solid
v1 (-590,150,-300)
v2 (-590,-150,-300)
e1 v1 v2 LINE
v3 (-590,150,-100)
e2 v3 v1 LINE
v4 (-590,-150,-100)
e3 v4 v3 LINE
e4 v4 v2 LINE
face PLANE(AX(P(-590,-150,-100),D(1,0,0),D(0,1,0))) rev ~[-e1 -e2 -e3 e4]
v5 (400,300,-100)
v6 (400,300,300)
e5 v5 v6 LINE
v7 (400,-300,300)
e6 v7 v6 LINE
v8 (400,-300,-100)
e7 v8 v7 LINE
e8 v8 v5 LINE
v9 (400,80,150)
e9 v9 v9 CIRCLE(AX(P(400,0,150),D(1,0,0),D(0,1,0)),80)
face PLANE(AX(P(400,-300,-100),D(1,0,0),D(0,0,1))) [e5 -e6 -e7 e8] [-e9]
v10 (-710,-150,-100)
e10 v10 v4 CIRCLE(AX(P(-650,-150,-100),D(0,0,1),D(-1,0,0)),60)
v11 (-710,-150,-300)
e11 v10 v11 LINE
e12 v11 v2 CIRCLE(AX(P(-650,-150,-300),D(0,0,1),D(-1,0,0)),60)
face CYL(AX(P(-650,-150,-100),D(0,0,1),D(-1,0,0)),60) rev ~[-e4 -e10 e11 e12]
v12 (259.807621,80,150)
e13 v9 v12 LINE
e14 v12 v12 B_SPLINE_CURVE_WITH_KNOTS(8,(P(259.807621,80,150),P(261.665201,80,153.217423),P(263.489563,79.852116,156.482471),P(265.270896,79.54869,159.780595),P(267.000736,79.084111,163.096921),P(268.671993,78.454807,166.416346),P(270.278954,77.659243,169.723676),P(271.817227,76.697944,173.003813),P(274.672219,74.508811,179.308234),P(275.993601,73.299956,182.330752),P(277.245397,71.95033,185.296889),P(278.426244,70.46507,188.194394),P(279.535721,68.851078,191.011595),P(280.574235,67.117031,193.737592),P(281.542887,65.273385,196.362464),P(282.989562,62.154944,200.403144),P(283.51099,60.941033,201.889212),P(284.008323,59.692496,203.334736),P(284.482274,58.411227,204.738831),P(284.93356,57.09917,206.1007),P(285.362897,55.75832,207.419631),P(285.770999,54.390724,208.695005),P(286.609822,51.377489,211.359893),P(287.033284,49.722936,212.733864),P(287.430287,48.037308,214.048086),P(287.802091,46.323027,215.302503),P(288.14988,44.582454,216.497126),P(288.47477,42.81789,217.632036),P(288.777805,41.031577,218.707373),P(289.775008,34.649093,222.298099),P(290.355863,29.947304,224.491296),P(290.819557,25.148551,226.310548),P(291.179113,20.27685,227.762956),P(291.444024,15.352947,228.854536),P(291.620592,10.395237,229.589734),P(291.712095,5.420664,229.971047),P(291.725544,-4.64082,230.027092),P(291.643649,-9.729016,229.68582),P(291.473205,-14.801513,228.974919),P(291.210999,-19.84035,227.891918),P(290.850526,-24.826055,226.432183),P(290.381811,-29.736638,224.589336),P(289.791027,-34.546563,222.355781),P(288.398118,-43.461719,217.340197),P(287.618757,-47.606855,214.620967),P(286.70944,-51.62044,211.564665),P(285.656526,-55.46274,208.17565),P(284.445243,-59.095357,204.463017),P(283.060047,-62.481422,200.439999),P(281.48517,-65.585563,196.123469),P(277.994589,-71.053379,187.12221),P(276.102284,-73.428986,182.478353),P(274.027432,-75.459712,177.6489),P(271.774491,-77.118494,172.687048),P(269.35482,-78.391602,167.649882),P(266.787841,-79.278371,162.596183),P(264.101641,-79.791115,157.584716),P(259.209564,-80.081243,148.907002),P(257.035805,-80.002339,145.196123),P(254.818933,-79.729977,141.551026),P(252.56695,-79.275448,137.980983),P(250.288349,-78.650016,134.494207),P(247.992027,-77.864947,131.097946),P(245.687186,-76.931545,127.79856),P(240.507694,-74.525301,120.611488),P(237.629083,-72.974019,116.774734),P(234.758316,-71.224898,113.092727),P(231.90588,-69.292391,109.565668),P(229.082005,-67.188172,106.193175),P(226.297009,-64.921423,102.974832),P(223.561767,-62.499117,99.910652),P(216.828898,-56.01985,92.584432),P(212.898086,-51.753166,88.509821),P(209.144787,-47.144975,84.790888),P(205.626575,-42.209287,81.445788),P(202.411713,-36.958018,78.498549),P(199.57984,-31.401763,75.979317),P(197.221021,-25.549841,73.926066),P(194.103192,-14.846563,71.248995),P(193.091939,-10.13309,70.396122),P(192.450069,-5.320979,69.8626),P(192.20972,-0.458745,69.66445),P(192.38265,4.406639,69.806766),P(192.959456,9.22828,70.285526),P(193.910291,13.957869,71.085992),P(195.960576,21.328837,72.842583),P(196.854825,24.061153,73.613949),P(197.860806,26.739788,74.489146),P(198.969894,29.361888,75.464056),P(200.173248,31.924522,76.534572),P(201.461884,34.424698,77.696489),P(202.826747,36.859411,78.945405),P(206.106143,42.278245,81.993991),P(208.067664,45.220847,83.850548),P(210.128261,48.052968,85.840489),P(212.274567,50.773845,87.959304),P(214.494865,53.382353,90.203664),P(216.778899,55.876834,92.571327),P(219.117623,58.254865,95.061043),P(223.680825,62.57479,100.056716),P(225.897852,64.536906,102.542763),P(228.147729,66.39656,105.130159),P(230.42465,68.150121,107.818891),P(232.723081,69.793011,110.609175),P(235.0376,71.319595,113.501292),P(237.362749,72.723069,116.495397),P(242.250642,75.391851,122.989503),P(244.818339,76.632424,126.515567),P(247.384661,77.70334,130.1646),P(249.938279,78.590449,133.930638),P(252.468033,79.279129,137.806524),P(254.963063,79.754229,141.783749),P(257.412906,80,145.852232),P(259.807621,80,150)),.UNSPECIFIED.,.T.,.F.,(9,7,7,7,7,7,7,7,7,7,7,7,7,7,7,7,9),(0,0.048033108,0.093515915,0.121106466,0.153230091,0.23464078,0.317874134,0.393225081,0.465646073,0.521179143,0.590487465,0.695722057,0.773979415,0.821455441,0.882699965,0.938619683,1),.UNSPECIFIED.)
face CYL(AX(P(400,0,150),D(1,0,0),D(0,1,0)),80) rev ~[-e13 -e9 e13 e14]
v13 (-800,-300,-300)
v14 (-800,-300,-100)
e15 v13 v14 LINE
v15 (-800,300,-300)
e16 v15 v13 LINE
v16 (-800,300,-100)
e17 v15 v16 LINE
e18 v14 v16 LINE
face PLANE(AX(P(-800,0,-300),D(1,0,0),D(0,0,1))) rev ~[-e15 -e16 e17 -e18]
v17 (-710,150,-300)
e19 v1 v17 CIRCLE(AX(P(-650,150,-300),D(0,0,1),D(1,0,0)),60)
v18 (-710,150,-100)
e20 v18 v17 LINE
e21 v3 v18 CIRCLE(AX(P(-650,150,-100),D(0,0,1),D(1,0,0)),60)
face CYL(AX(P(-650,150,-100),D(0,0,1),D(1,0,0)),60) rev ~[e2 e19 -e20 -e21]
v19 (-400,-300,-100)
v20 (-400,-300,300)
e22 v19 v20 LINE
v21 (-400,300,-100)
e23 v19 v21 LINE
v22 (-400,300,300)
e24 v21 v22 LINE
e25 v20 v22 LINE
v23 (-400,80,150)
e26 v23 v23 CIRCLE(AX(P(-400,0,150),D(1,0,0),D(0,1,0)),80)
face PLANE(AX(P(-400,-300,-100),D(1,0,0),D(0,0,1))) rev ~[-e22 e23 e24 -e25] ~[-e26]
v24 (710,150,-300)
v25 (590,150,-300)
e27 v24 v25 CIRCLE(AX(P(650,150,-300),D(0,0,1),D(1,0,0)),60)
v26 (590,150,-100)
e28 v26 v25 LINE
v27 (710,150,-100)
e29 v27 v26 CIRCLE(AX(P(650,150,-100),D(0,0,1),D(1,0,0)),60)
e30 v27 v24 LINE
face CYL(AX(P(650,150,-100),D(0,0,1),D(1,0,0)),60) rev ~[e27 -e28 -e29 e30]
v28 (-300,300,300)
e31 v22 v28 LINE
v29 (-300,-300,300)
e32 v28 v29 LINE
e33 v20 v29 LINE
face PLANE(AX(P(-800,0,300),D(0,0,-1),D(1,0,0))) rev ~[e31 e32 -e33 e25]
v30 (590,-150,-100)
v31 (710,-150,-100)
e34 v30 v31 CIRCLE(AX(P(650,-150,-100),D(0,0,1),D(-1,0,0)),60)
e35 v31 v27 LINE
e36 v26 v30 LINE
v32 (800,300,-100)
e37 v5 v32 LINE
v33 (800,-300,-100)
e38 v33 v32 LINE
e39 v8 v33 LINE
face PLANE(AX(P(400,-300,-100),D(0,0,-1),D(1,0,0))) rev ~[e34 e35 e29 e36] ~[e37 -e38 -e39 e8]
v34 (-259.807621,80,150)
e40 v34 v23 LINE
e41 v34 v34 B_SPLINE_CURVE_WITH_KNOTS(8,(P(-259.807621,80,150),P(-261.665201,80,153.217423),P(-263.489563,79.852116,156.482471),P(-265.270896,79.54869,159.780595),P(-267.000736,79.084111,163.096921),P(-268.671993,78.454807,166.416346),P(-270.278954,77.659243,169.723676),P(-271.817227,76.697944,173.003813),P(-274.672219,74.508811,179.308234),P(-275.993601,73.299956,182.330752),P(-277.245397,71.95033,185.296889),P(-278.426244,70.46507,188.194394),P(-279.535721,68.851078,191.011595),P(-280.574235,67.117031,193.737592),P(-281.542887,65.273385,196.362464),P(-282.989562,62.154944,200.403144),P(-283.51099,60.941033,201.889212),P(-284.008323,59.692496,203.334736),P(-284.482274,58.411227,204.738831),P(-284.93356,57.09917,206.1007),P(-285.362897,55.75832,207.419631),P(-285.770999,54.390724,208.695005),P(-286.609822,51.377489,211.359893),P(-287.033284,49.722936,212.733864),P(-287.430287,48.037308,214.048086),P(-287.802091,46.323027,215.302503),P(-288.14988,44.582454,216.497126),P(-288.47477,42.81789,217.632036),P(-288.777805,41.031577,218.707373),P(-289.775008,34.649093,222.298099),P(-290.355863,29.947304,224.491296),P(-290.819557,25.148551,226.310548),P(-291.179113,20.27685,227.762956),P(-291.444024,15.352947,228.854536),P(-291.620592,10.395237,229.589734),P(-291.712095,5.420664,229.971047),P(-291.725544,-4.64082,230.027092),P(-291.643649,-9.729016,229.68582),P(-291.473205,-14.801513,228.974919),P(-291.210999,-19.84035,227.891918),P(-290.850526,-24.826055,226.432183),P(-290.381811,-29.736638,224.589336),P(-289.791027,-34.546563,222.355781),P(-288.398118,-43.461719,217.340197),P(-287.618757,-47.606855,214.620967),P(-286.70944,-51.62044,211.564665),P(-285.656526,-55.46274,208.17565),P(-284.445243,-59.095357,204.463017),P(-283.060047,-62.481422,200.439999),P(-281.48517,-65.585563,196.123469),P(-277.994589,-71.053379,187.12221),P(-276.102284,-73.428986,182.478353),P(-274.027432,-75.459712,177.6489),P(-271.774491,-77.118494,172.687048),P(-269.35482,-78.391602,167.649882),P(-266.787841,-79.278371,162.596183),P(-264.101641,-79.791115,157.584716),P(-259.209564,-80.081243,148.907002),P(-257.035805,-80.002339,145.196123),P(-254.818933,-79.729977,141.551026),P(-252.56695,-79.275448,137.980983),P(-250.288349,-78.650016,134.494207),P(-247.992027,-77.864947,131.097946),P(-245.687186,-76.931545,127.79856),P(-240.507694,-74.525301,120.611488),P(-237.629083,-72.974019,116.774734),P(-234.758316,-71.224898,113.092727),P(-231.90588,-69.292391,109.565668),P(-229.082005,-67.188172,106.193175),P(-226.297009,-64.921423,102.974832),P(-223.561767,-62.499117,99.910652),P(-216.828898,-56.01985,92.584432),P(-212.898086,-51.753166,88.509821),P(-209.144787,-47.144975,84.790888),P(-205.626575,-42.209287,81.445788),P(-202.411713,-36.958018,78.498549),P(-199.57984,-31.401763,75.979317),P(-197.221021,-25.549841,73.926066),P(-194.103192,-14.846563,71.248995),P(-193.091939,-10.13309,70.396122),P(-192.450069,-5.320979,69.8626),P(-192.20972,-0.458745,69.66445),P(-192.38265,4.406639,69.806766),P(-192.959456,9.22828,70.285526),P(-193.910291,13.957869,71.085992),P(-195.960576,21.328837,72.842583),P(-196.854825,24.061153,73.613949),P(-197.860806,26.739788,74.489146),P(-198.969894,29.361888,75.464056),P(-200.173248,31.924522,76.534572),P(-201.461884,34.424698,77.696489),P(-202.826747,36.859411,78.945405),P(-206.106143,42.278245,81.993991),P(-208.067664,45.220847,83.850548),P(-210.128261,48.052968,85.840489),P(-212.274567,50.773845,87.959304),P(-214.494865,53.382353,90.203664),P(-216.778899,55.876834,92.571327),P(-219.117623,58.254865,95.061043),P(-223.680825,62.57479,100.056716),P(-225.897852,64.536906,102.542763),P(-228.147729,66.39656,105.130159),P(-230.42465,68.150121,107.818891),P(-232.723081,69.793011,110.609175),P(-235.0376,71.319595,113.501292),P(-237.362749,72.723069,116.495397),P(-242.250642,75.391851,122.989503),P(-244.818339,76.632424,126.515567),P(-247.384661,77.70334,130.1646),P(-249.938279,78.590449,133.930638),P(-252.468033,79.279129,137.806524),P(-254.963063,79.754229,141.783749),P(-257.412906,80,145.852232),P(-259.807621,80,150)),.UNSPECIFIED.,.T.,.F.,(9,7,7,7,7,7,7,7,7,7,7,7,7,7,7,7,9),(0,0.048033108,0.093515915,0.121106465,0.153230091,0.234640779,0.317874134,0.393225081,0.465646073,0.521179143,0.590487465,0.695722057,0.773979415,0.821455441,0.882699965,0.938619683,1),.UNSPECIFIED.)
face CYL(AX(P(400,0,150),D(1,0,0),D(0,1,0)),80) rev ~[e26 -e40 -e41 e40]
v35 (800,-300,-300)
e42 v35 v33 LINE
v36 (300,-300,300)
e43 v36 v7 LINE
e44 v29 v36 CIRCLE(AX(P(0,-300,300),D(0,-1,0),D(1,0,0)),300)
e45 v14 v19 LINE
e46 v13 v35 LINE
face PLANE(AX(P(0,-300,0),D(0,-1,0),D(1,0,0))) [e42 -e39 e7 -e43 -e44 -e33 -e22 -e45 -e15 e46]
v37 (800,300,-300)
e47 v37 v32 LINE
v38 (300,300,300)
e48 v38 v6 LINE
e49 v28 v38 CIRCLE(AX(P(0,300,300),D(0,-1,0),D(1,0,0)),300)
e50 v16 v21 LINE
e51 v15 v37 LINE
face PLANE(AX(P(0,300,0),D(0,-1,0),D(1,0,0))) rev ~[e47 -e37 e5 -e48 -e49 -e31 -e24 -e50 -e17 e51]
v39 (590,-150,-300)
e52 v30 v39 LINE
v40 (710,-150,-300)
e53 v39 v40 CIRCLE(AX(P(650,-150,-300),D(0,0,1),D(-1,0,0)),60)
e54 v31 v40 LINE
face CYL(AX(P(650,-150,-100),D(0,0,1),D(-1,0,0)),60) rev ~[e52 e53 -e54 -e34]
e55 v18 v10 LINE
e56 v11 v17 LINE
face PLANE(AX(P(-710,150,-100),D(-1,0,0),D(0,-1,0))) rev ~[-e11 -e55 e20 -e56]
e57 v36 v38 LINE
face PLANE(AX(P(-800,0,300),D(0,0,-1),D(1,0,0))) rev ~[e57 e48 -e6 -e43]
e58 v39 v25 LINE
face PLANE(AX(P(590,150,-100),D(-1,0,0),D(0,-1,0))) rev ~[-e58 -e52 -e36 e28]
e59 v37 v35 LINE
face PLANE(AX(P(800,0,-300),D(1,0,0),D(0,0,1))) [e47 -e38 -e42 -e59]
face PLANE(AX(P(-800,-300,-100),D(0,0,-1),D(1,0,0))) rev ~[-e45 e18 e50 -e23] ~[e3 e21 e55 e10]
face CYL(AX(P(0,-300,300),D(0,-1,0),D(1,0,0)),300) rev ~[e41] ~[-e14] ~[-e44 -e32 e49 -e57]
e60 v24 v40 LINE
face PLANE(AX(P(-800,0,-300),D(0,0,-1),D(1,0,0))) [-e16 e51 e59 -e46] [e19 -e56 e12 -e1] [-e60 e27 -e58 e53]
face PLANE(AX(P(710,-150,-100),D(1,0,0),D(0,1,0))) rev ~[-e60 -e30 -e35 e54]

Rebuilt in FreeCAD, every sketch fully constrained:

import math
import FreeCAD as App
import Part
import Sketcher
from FreeCAD import Vector

doc = App.newDocument("Part")
body = doc.addObject("PartDesign::Body", "Body")

# Sketch on XZ plane
sketch1 = body.newObject("Sketcher::SketchObject", "Sketch")
sketch1.AttachmentSupport = (doc.getObject("XZ_Plane"), [""])
sketch1.MapMode = "FlatFace"
sketch1.addGeometry(Part.LineSegment(Vector(-800, 300, 0), Vector(-800, -300, 0)), False)
sketch1.addGeometry(Part.LineSegment(Vector(-800, -300, 0), Vector(800, -300, 0)), False)
sketch1.addGeometry(Part.LineSegment(Vector(800, -300, 0), Vector(800, 300, 0)), False)
sketch1.addGeometry(Part.LineSegment(Vector(800, 300, 0), Vector(-800, 300, 0)), False)
sketch1.addConstraint(Sketcher.Constraint("Coincident", 0, 2, 1, 1))
sketch1.addConstraint(Sketcher.Constraint("Coincident", 1, 2, 2, 1))
sketch1.addConstraint(Sketcher.Constraint("Coincident", 2, 2, 3, 1))
sketch1.addConstraint(Sketcher.Constraint("Coincident", 3, 2, 0, 1))
sketch1.addConstraint(Sketcher.Constraint("Vertical", 0))
sketch1.addConstraint(Sketcher.Constraint("Horizontal", 1))
sketch1.addConstraint(Sketcher.Constraint("Vertical", 2))
sketch1.addConstraint(Sketcher.Constraint("Horizontal", 3))
sketch1.addConstraint(Sketcher.Constraint("Symmetric", 0, 2, 2, 2, -1, 1))
sketch1.addConstraint(Sketcher.Constraint("DistanceX", 1, 1, 1, 2, 1600.0))
sketch1.addConstraint(Sketcher.Constraint("DistanceY", 0, 2, 0, 1, 600.0))
pad1 = body.newObject("PartDesign::Pad", "Pad")
pad1.Profile = sketch1
pad1.Length = 600
pad1.Midplane = True

# Sketch on XZ plane
sketch2 = body.newObject("Sketcher::SketchObject", "Sketch001")
sketch2.AttachmentSupport = (doc.getObject("XZ_Plane"), [""])
sketch2.MapMode = "FlatFace"
sketch2.AttachmentOffset = App.Placement(Vector(0, 0, 300), App.Rotation())
sketch2.addGeometry(Part.Circle(Vector(0, 300, 0), Vector(0, 0, 1), 300), False)
sketch2.addConstraint(Sketcher.Constraint("PointOnObject", 0, 3, -2))
sketch2.addConstraint(Sketcher.Constraint("Diameter", 0, 600.0))
sketch2.addConstraint(Sketcher.Constraint("DistanceY", -1, 1, 0, 3, 300.0))
pocket1 = body.newObject("PartDesign::Pocket", "Pocket")
pocket1.Profile = sketch2
pocket1.Length = 600

# Sketch on XZ plane
sketch3 = body.newObject("Sketcher::SketchObject", "Sketch002")
sketch3.AttachmentSupport = (doc.getObject("XZ_Plane"), [""])
sketch3.MapMode = "FlatFace"
sketch3.AttachmentOffset = App.Placement(Vector(0, 0, 300), App.Rotation())
sketch3.addGeometry(Part.LineSegment(Vector(-800, 300, 0), Vector(-800, -100, 0)), False)
sketch3.addGeometry(Part.LineSegment(Vector(-800, -100, 0), Vector(-400, -100, 0)), False)
sketch3.addGeometry(Part.LineSegment(Vector(-400, -100, 0), Vector(-400, 300, 0)), False)
sketch3.addGeometry(Part.LineSegment(Vector(-400, 300, 0), Vector(-800, 300, 0)), False)
sketch3.addGeometry(Part.LineSegment(Vector(400, 300, 0), Vector(400, -100, 0)), False)
sketch3.addGeometry(Part.LineSegment(Vector(400, -100, 0), Vector(800, -100, 0)), False)
sketch3.addGeometry(Part.LineSegment(Vector(800, -100, 0), Vector(800, 300, 0)), False)
sketch3.addGeometry(Part.LineSegment(Vector(800, 300, 0), Vector(400, 300, 0)), False)
sketch3.addConstraint(Sketcher.Constraint("Coincident", 0, 2, 1, 1))
sketch3.addConstraint(Sketcher.Constraint("Coincident", 1, 2, 2, 1))
sketch3.addConstraint(Sketcher.Constraint("Coincident", 2, 2, 3, 1))
sketch3.addConstraint(Sketcher.Constraint("Coincident", 3, 2, 0, 1))
sketch3.addConstraint(Sketcher.Constraint("Coincident", 4, 2, 5, 1))
sketch3.addConstraint(Sketcher.Constraint("Coincident", 5, 2, 6, 1))
sketch3.addConstraint(Sketcher.Constraint("Coincident", 6, 2, 7, 1))
sketch3.addConstraint(Sketcher.Constraint("Coincident", 7, 2, 4, 1))
sketch3.addConstraint(Sketcher.Constraint("Vertical", 0))
sketch3.addConstraint(Sketcher.Constraint("Horizontal", 1))
sketch3.addConstraint(Sketcher.Constraint("Vertical", 2))
sketch3.addConstraint(Sketcher.Constraint("Horizontal", 3))
sketch3.addConstraint(Sketcher.Constraint("Vertical", 4))
sketch3.addConstraint(Sketcher.Constraint("Horizontal", 5))
sketch3.addConstraint(Sketcher.Constraint("Vertical", 6))
sketch3.addConstraint(Sketcher.Constraint("Horizontal", 7))
sketch3.addConstraint(Sketcher.Constraint("Symmetric", 1, 2, 4, 2, -2))
sketch3.addConstraint(Sketcher.Constraint("Symmetric", 3, 2, 6, 2, -2))
sketch3.addConstraint(Sketcher.Constraint("Equal", 7, 0))
sketch3.addConstraint(Sketcher.Constraint("DistanceX", 1, 1, 1, 2, 400.0))
sketch3.addConstraint(Sketcher.Constraint("DistanceX", 0, 2, -1, 1, 800.0))
sketch3.addConstraint(Sketcher.Constraint("DistanceY", 0, 2, -1, 1, 100.0))
pocket2 = body.newObject("PartDesign::Pocket", "Pocket001")
pocket2.Profile = sketch3
pocket2.Type = "ThroughAll"

# Sketch on XY plane
sketch4 = body.newObject("Sketcher::SketchObject", "Sketch003")
sketch4.AttachmentSupport = (doc.getObject("XY_Plane"), [""])
sketch4.MapMode = "FlatFace"
sketch4.AttachmentOffset = App.Placement(Vector(0, 0, -100), App.Rotation())
sketch4.addGeometry(Part.ArcOfCircle(Part.Circle(Vector(650, -150, 0), Vector(0, 0, 1), 60), math.radians(180), math.radians(360)), False)
sketch4.addGeometry(Part.LineSegment(Vector(710, -150, 0), Vector(710, 150, 0)), False)
sketch4.addGeometry(Part.ArcOfCircle(Part.Circle(Vector(650, 150, 0), Vector(0, 0, 1), 60), math.radians(0), math.radians(180)), False)
sketch4.addGeometry(Part.LineSegment(Vector(590, 150, 0), Vector(590, -150, 0)), False)
sketch4.addGeometry(Part.ArcOfCircle(Part.Circle(Vector(-650, -150, 0), Vector(0, 0, 1), 60), math.radians(180), math.radians(360)), False)
sketch4.addGeometry(Part.LineSegment(Vector(-590, -150, 0), Vector(-590, 150, 0)), False)
sketch4.addGeometry(Part.ArcOfCircle(Part.Circle(Vector(-650, 150, 0), Vector(0, 0, 1), 60), math.radians(0), math.radians(180)), False)
sketch4.addGeometry(Part.LineSegment(Vector(-710, 150, 0), Vector(-710, -150, 0)), False)
sketch4.addConstraint(Sketcher.Constraint("Tangent", 0, 2, 1, 1))
sketch4.addConstraint(Sketcher.Constraint("Tangent", 1, 2, 2, 1))
sketch4.addConstraint(Sketcher.Constraint("Tangent", 2, 2, 3, 1))
sketch4.addConstraint(Sketcher.Constraint("Tangent", 3, 2, 0, 1))
sketch4.addConstraint(Sketcher.Constraint("Tangent", 4, 2, 5, 1))
sketch4.addConstraint(Sketcher.Constraint("Tangent", 5, 2, 6, 1))
sketch4.addConstraint(Sketcher.Constraint("Tangent", 6, 2, 7, 1))
sketch4.addConstraint(Sketcher.Constraint("Tangent", 7, 2, 4, 1))
sketch4.addConstraint(Sketcher.Constraint("Vertical", 1))
sketch4.addConstraint(Sketcher.Constraint("Vertical", 3))
sketch4.addConstraint(Sketcher.Constraint("Vertical", 5))
sketch4.addConstraint(Sketcher.Constraint("Vertical", 7))
sketch4.addConstraint(Sketcher.Constraint("Equal", 2, 4))
sketch4.addConstraint(Sketcher.Constraint("Symmetric", 2, 3, 4, 3, -1, 1))
sketch4.addConstraint(Sketcher.Constraint("Horizontal", 0, 3, 4, 3))
sketch4.addConstraint(Sketcher.Constraint("Horizontal", 2, 3, 6, 3))
sketch4.addConstraint(Sketcher.Constraint("Radius", 0, 60.0))
sketch4.addConstraint(Sketcher.Constraint("DistanceY", 1, 1, 1, 2, 300.0))
sketch4.addConstraint(Sketcher.Constraint("DistanceX", -1, 1, 0, 3, 650.0))
pocket3 = body.newObject("PartDesign::Pocket", "Pocket002")
pocket3.Profile = sketch4
pocket3.Type = "ThroughAll"

# Sketch on YZ plane
sketch5 = body.newObject("Sketcher::SketchObject", "Sketch004")
sketch5.AttachmentSupport = (doc.getObject("YZ_Plane"), [""])
sketch5.MapMode = "FlatFace"
sketch5.AttachmentOffset = App.Placement(Vector(0, 0, 400), App.Rotation())
sketch5.addGeometry(Part.Circle(Vector(0, 150, 0), Vector(0, 0, 1), 80), False)
sketch5.addConstraint(Sketcher.Constraint("PointOnObject", 0, 3, -2))
sketch5.addConstraint(Sketcher.Constraint("Diameter", 0, 160.0))
sketch5.addConstraint(Sketcher.Constraint("DistanceY", -1, 1, 0, 3, 150.0))
pocket4 = body.newObject("PartDesign::Pocket", "Pocket003")
pocket4.Profile = sketch5
pocket4.Type = "ThroughAll"

doc.recompute()
